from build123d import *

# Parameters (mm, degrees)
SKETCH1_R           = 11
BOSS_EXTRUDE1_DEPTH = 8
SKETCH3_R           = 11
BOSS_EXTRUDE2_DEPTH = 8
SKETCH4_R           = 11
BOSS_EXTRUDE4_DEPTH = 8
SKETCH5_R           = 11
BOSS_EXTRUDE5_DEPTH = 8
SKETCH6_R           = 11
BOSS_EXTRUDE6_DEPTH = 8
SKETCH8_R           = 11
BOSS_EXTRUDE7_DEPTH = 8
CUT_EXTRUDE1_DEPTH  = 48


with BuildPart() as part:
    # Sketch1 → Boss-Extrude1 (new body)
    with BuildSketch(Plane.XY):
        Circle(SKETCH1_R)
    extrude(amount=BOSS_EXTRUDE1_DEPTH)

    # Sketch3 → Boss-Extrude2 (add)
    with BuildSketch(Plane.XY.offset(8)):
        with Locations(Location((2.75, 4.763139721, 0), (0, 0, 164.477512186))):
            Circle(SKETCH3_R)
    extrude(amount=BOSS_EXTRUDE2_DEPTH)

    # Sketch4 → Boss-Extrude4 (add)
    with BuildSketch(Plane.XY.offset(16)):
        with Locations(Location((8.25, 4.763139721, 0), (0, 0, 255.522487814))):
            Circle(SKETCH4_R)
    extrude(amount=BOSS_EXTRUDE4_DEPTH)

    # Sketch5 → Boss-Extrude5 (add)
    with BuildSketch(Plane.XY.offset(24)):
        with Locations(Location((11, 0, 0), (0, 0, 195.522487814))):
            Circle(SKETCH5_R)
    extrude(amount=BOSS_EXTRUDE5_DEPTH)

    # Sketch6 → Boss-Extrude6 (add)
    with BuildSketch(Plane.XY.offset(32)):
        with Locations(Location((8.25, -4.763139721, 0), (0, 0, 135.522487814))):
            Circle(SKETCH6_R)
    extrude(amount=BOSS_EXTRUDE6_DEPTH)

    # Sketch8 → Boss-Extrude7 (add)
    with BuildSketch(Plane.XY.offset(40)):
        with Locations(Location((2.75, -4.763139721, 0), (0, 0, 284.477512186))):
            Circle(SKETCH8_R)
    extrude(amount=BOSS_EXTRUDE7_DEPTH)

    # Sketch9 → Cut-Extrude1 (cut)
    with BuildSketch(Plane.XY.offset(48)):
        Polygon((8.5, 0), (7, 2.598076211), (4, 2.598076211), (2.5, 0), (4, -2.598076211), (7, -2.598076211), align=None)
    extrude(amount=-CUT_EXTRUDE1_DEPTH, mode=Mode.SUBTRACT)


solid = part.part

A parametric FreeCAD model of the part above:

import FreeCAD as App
import Part
import Sketcher
from FreeCAD import Vector
Q = App.Units.Quantity


def add_polygon(sketch, points):
    """Adds a closed chain of lines whose ends are joined by coincident constraints."""
    first, n = sketch.GeometryCount, len(points)
    for a, b in zip(points, points[1:] + points[:1]):
        sketch.addGeometry(Part.LineSegment(App.Vector(*a, 0), App.Vector(*b, 0)), False)
    for i in range(n):
        sketch.addConstraint(Sketcher.Constraint("Coincident", first + i, 2, first + (i + 1) % n, 1))

doc = App.newDocument("Part")
body = doc.addObject("PartDesign::Body", "Body")

sketch1 = doc.addObject("Sketcher::SketchObject", "Sketch")
body.addObject(sketch1)
sketch1.AttachmentSupport = (doc.XY_Plane, [""])
sketch1.MapMode = "FlatFace"
sketch1.addGeometry(Part.Circle(Vector(0, 0, 0), Vector(0, 0, 1), 11), False)
sketch1.addConstraint([
    Sketcher.Constraint("Coincident", 0, 3, -1, 1),
    Sketcher.Constraint("Diameter", 0, Q("22 mm")),
])
pad1 = doc.addObject("PartDesign::Pad", "Pad")
body.addObject(pad1)
pad1.Profile = sketch1
pad1.Length = 8

sketch2 = doc.addObject("Sketcher::SketchObject", "Sketch001")
body.addObject(sketch2)
sketch2.AttachmentSupport = (doc.XY_Plane, [""])
sketch2.MapMode = "FlatFace"
sketch2.AttachmentOffset = App.Placement(Vector(0, 0, 8), App.Rotation())
sketch2.addGeometry(Part.Circle(Vector(2.75, 4.76314, 0), Vector(0, 0, 1), 11), False)
sketch2.addConstraint([
    Sketcher.Constraint("Diameter", 0, Q("22 mm")),
    Sketcher.Constraint("DistanceX", -1, 1, 0, 3, Q("2.75 mm")),
    Sketcher.Constraint("DistanceY", -1, 1, 0, 3, Q("4.76314 mm")),
])
pad2 = doc.addObject("PartDesign::Pad", "Pad001")
body.addObject(pad2)
pad2.Profile = sketch2
pad2.Length = 8

sketch3 = doc.addObject("Sketcher::SketchObject", "Sketch002")
body.addObject(sketch3)
sketch3.AttachmentSupport = (doc.XY_Plane, [""])
sketch3.MapMode = "FlatFace"
sketch3.AttachmentOffset = App.Placement(Vector(0, 0, 16), App.Rotation())
sketch3.addGeometry(Part.Circle(Vector(8.25, 4.76314, 0), Vector(0, 0, 1), 11), False)
sketch3.addConstraint([
    Sketcher.Constraint("Diameter", 0, Q("22 mm")),
    Sketcher.Constraint("DistanceX", -1, 1, 0, 3, Q("8.25 mm")),
    Sketcher.Constraint("DistanceY", -1, 1, 0, 3, Q("4.76314 mm")),
])
pad3 = doc.addObject("PartDesign::Pad", "Pad002")
body.addObject(pad3)
pad3.Profile = sketch3
pad3.Length = 8

sketch4 = doc.addObject("Sketcher::SketchObject", "Sketch003")
body.addObject(sketch4)
sketch4.AttachmentSupport = (doc.XY_Plane, [""])
sketch4.MapMode = "FlatFace"
sketch4.AttachmentOffset = App.Placement(Vector(0, 0, 24), App.Rotation())
sketch4.addGeometry(Part.Circle(Vector(11, 0, 0), Vector(0, 0, 1), 11), False)
sketch4.addConstraint([
    Sketcher.Constraint("PointOnObject", 0, 3, -1),
    Sketcher.Constraint("Diameter", 0, Q("22 mm")),
    Sketcher.Constraint("DistanceX", -1, 1, 0, 3, Q("11 mm")),
])
pad4 = doc.addObject("PartDesign::Pad", "Pad003")
body.addObject(pad4)
pad4.Profile = sketch4
pad4.Length = 8

sketch5 = doc.addObject("Sketcher::SketchObject", "Sketch004")
body.addObject(sketch5)
sketch5.AttachmentSupport = (doc.XY_Plane, [""])
sketch5.MapMode = "FlatFace"
sketch5.AttachmentOffset = App.Placement(Vector(0, 0, 32), App.Rotation())
sketch5.addGeometry(Part.Circle(Vector(8.25, -4.76314, 0), Vector(0, 0, 1), 11), False)
sketch5.addConstraint([
    Sketcher.Constraint("Diameter", 0, Q("22 mm")),
    Sketcher.Constraint("DistanceX", -1, 1, 0, 3, Q("8.25 mm")),
    Sketcher.Constraint("DistanceY", 0, 3, -1, 1, Q("4.76314 mm")),
])
pad5 = doc.addObject("PartDesign::Pad", "Pad004")
body.addObject(pad5)
pad5.Profile = sketch5
pad5.Length = 8

sketch6 = doc.addObject("Sketcher::SketchObject", "Sketch005")
body.addObject(sketch6)
sketch6.AttachmentSupport = (doc.XY_Plane, [""])
sketch6.MapMode = "FlatFace"
sketch6.AttachmentOffset = App.Placement(Vector(0, 0, 40), App.Rotation())
sketch6.addGeometry(Part.Circle(Vector(2.75, -4.76314, 0), Vector(0, 0, 1), 11), False)
sketch6.addConstraint([
    Sketcher.Constraint("Diameter", 0, Q("22 mm")),
    Sketcher.Constraint("DistanceX", -1, 1, 0, 3, Q("2.75 mm")),
    Sketcher.Constraint("DistanceY", 0, 3, -1, 1, Q("4.76314 mm")),
])
pad6 = doc.addObject("PartDesign::Pad", "Pad005")
body.addObject(pad6)
pad6.Profile = sketch6
pad6.Length = 8

sketch7 = doc.addObject("Sketcher::SketchObject", "Sketch006")
body.addObject(sketch7)
sketch7.AttachmentSupport = (doc.XY_Plane, [""])
sketch7.MapMode = "FlatFace"
sketch7.AttachmentOffset = App.Placement(Vector(0, 0, 48), App.Rotation())
add_polygon(sketch7, [(8.5, 0), (7, 2.598076), (4, 2.598076), (2.5, 0), (4, -2.598076), (7, -2.598076)])
sketch7.addConstraint([
    Sketcher.Constraint("Horizontal", 1),
    Sketcher.Constraint("Horizontal", 4),
    Sketcher.Constraint("Symmetric", 1, 2, 3, 2, -1),
    Sketcher.Constraint("PointOnObject", 2, 2, -1),
    Sketcher.Constraint("PointOnObject", 5, 2, -1),
    Sketcher.Constraint("Parallel", 0, 3),
    Sketcher.Constraint("Parallel", 2, 5),
    Sketcher.Constraint("DistanceX", 1, 2, 1, 1, Q("3 mm")),
    Sketcher.Constraint("Angle", 0, Q("120 deg")),
    Sketcher.Constraint("Distance", 0, Q("3 mm")),
    Sketcher.Constraint("DistanceX", -1, 1, 0, 2, Q("7 mm")),
])
pocket1 = doc.addObject("PartDesign::Pocket", "Pocket")
body.addObject(pocket1)
pocket1.Profile = sketch7
pocket1.Length = 48

doc.recompute()
